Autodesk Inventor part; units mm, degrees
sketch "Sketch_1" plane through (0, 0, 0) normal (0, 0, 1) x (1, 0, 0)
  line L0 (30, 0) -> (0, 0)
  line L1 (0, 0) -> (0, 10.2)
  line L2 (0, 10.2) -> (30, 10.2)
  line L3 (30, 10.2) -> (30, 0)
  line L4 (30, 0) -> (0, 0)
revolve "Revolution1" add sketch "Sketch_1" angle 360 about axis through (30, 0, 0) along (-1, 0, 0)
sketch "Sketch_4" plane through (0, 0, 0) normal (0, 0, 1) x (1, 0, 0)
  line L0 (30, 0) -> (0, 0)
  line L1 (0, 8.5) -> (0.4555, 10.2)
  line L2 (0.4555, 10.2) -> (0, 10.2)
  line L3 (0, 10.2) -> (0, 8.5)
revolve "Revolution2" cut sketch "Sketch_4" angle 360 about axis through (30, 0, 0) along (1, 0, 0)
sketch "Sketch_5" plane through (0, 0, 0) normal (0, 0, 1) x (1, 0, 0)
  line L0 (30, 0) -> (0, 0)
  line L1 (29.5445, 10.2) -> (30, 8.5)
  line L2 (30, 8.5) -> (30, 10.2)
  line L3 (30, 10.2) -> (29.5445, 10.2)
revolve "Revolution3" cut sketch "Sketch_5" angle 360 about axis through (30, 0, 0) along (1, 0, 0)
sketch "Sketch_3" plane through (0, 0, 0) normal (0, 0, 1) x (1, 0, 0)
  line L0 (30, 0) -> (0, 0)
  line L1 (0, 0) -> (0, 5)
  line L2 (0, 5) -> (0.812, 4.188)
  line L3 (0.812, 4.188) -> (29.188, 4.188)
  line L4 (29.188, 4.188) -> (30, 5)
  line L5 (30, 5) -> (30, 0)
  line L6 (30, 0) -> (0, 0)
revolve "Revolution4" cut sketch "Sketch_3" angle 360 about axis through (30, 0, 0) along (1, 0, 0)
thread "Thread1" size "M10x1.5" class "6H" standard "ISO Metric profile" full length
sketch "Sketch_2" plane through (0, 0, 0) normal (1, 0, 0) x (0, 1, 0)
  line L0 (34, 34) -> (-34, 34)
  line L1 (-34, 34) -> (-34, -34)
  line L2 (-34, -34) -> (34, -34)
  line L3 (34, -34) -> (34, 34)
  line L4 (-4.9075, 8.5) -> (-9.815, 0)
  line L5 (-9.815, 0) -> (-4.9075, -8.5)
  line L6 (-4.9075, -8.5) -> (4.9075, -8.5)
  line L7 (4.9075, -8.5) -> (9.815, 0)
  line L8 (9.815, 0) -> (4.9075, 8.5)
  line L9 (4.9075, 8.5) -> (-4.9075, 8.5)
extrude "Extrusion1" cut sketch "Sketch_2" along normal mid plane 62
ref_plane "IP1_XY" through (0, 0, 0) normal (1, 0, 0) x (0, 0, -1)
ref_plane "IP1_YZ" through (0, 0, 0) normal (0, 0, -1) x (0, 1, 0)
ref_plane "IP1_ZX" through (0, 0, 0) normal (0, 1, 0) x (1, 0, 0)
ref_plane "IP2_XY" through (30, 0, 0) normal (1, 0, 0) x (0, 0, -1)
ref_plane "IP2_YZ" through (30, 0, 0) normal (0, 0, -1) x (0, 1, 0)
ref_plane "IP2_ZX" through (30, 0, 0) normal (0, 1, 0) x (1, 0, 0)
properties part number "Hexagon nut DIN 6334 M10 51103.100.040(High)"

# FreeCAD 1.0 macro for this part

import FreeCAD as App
import Part
import Sketcher

V = App.Vector
Q = App.Units.Quantity

doc = App.newDocument("Part")
body = doc.addObject("PartDesign::Body", "Body")

sketch1 = doc.addObject("Sketcher::SketchObject", "Sketch")
body.addObject(sketch1)
sketch1.AttachmentSupport = (doc.XY_Plane, [""])
sketch1.MapMode = "FlatFace"
sketch1.addGeometry(Part.LineSegment(V(0, 0, 0), V(30, 0, 0)), False)
sketch1.addGeometry(Part.LineSegment(V(30, 0, 0), V(30, 10.2, 0)), False)
sketch1.addGeometry(Part.LineSegment(V(30, 10.2, 0), V(0, 10.2, 0)), False)
sketch1.addGeometry(Part.LineSegment(V(0, 10.2, 0), V(0, 0, 0)), False)
sketch1.addConstraint(Sketcher.Constraint("Coincident", 0, 2, 1, 1))
sketch1.addConstraint(Sketcher.Constraint("Coincident", 1, 2, 2, 1))
sketch1.addConstraint(Sketcher.Constraint("Coincident", 2, 2, 3, 1))
sketch1.addConstraint(Sketcher.Constraint("Coincident", 3, 2, 0, 1))
sketch1.addConstraint(Sketcher.Constraint("Horizontal", 0))
sketch1.addConstraint(Sketcher.Constraint("Vertical", 1))
sketch1.addConstraint(Sketcher.Constraint("Horizontal", 2))
sketch1.addConstraint(Sketcher.Constraint("Vertical", 3))
sketch1.addConstraint(Sketcher.Constraint("Coincident", 3, 2, -1, 1))
sketch1.addConstraint(Sketcher.Constraint("DistanceX", 0, 1, 0, 2, Q("30 mm")))
sketch1.addConstraint(Sketcher.Constraint("DistanceY", 1, 1, 1, 2, Q("10.2 mm")))
revolution = doc.addObject("PartDesign::Revolution", "Revolution")
body.addObject(revolution)
revolution.Profile = sketch1
revolution.ReferenceAxis = (sketch1, ["H_Axis"])
revolution.Angle = 360

sketch2 = doc.addObject("Sketcher::SketchObject", "Sketch001")
body.addObject(sketch2)
sketch2.AttachmentSupport = (doc.XY_Plane, [""])
sketch2.MapMode = "FlatFace"
sketch2.addGeometry(Part.LineSegment(V(0, 10.2, 0), V(0, 8.5, 0)), False)
sketch2.addGeometry(Part.LineSegment(V(0, 8.5, 0), V(0.4555, 10.2, 0)), False)
sketch2.addGeometry(Part.LineSegment(V(0.4555, 10.2, 0), V(0, 10.2, 0)), False)
sketch2.addConstraint(Sketcher.Constraint("Coincident", 0, 2, 1, 1))
sketch2.addConstraint(Sketcher.Constraint("Coincident", 1, 2, 2, 1))
sketch2.addConstraint(Sketcher.Constraint("Coincident", 2, 2, 0, 1))
sketch2.addConstraint(Sketcher.Constraint("Vertical", 0))
sketch2.addConstraint(Sketcher.Constraint("Horizontal", 2))
sketch2.addConstraint(Sketcher.Constraint("PointOnObject", 0, 2, -2))
sketch2.addConstraint(Sketcher.Constraint("Angle", 1, Q("75.0004 deg")))
sketch2.addConstraint(Sketcher.Constraint("DistanceY", 0, 2, 0, 1, Q("1.7 mm")))
sketch2.addConstraint(Sketcher.Constraint("DistanceY", -1, 1, 0, 2, Q("8.5 mm")))
groove = doc.addObject("PartDesign::Groove", "Groove")
body.addObject(groove)
groove.Profile = sketch2
groove.ReferenceAxis = (sketch2, ["H_Axis"])
groove.Angle = 360

sketch3 = doc.addObject("Sketcher::SketchObject", "Sketch002")
body.addObject(sketch3)
sketch3.AttachmentSupport = (doc.XY_Plane, [""])
sketch3.MapMode = "FlatFace"
sketch3.addGeometry(Part.LineSegment(V(30, 10.2, 0), V(29.5445, 10.2, 0)), False)
sketch3.addGeometry(Part.LineSegment(V(29.5445, 10.2, 0), V(30, 8.5, 0)), False)
sketch3.addGeometry(Part.LineSegment(V(30, 8.5, 0), V(30, 10.2, 0)), False)
sketch3.addConstraint(Sketcher.Constraint("Coincident", 0, 2, 1, 1))
sketch3.addConstraint(Sketcher.Constraint("Coincident", 1, 2, 2, 1))
sketch3.addConstraint(Sketcher.Constraint("Coincident", 2, 2, 0, 1))
sketch3.addConstraint(Sketcher.Constraint("Horizontal", 0))
sketch3.addConstraint(Sketcher.Constraint("Vertical", 2))
sketch3.addConstraint(Sketcher.Constraint("Angle", 1, Q("-75.0004 deg")))
sketch3.addConstraint(Sketcher.Constraint("DistanceY", 2, 1, 2, 2, Q("1.7 mm")))
sketch3.addConstraint(Sketcher.Constraint("DistanceX", -1, 1, 1, 2, Q("30 mm")))
sketch3.addConstraint(Sketcher.Constraint("DistanceY", -1, 1, 0, 2, Q("10.2 mm")))
groove2 = doc.addObject("PartDesign::Groove", "Groove001")
body.addObject(groove2)
groove2.Profile = sketch3
groove2.ReferenceAxis = (sketch3, ["H_Axis"])
groove2.Angle = 360

sketch4 = doc.addObject("Sketcher::SketchObject", "Sketch003")
body.addObject(sketch4)
sketch4.AttachmentSupport = (doc.XY_Plane, [""])
sketch4.MapMode = "FlatFace"
sketch4.addGeometry(Part.LineSegment(V(0, 0, 0), V(30, 0, 0)), False)
sketch4.addGeometry(Part.LineSegment(V(30, 0, 0), V(30, 5, 0)), False)
sketch4.addGeometry(Part.LineSegment(V(30, 5, 0), V(29.188, 4.188, 0)), False)
sketch4.addGeometry(Part.LineSegment(V(29.188, 4.188, 0), V(0.812, 4.188, 0)), False)
sketch4.addGeometry(Part.LineSegment(V(0.812, 4.188, 0), V(0, 5, 0)), False)
sketch4.addGeometry(Part.LineSegment(V(0, 5, 0), V(0, 0, 0)), False)
sketch4.addConstraint(Sketcher.Constraint("Coincident", 0, 2, 1, 1))
sketch4.addConstraint(Sketcher.Constraint("Coincident", 1, 2, 2, 1))
sketch4.addConstraint(Sketcher.Constraint("Coincident", 2, 2, 3, 1))
sketch4.addConstraint(Sketcher.Constraint("Coincident", 3, 2, 4, 1))
sketch4.addConstraint(Sketcher.Constraint("Coincident", 4, 2, 5, 1))
sketch4.addConstraint(Sketcher.Constraint("Coincident", 5, 2, 0, 1))
sketch4.addConstraint(Sketcher.Constraint("Horizontal", 0))
sketch4.addConstraint(Sketcher.Constraint("Vertical", 1))
sketch4.addConstraint(Sketcher.Constraint("Horizontal", 3))
sketch4.addConstraint(Sketcher.Constraint("Vertical", 5))
sketch4.addConstraint(Sketcher.Constraint("Coincident", 5, 2, -1, 1))
sketch4.addConstraint(Sketcher.Constraint("Perpendicular", 2, 4))
sketch4.addConstraint(Sketcher.Constraint("Horizontal", 1, 2, 4, 2))
sketch4.addConstraint(Sketcher.Constraint("Equal", 2, 4))
sketch4.addConstraint(Sketcher.Constraint("DistanceX", 0, 1, 0, 2, Q("30 mm")))
sketch4.addConstraint(Sketcher.Constraint("DistanceY", 1, 1, 1, 2, Q("5 mm")))
sketch4.addConstraint(Sketcher.Constraint("DistanceX", 3, 2, 3, 1, Q("28.376 mm")))
groove3 = doc.addObject("PartDesign::Groove", "Groove002")
body.addObject(groove3)
groove3.Profile = sketch4
groove3.ReferenceAxis = (sketch4, ["H_Axis"])
groove3.Angle = 360

sketch5 = doc.addObject("Sketcher::SketchObject", "Sketch004")
body.addObject(sketch5)
sketch5.AttachmentSupport = (doc.YZ_Plane, [""])
sketch5.MapMode = "FlatFace"
sketch5.addGeometry(Part.LineSegment(V(34, -34, 0), V(34, 34, 0)), False)
sketch5.addGeometry(Part.LineSegment(V(34, 34, 0), V(-34, 34, 0)), False)
sketch5.addGeometry(Part.LineSegment(V(-34, 34, 0), V(-34, -34, 0)), False)
sketch5.addGeometry(Part.LineSegment(V(-34, -34, 0), V(34, -34, 0)), False)
sketch5.addGeometry(Part.LineSegment(V(-9.815, 0, 0), V(-4.9075, 8.5, 0)), False)
sketch5.addGeometry(Part.LineSegment(V(-4.9075, 8.5, 0), V(4.9075, 8.5, 0)), False)
sketch5.addGeometry(Part.LineSegment(V(4.9075, 8.5, 0), V(9.815, 0, 0)), False)
sketch5.addGeometry(Part.LineSegment(V(9.815, 0, 0), V(4.9075, -8.5, 0)), False)
sketch5.addGeometry(Part.LineSegment(V(4.9075, -8.5, 0), V(-4.9075, -8.5, 0)), False)
sketch5.addGeometry(Part.LineSegment(V(-4.9075, -8.5, 0), V(-9.815, 0, 0)), False)
sketch5.addConstraint(Sketcher.Constraint("Coincident", 0, 2, 1, 1))
sketch5.addConstraint(Sketcher.Constraint("Coincident", 1, 2, 2, 1))
sketch5.addConstraint(Sketcher.Constraint("Coincident", 2, 2, 3, 1))
sketch5.addConstraint(Sketcher.Constraint("Coincident", 3, 2, 0, 1))
sketch5.addConstraint(Sketcher.Constraint("Coincident", 4, 2, 5, 1))
sketch5.addConstraint(Sketcher.Constraint("Coincident", 5, 2, 6, 1))
sketch5.addConstraint(Sketcher.Constraint("Coincident", 6, 2, 7, 1))
sketch5.addConstraint(Sketcher.Constraint("Coincident", 7, 2, 8, 1))
sketch5.addConstraint(Sketcher.Constraint("Coincident", 8, 2, 9, 1))
sketch5.addConstraint(Sketcher.Constraint("Coincident", 9, 2, 4, 1))
sketch5.addConstraint(Sketcher.Constraint("Vertical", 0))
sketch5.addConstraint(Sketcher.Constraint("Horizontal", 1))
sketch5.addConstraint(Sketcher.Constraint("Vertical", 2))
sketch5.addConstraint(Sketcher.Constraint("Horizontal", 3))
sketch5.addConstraint(Sketcher.Constraint("Horizontal", 5))
sketch5.addConstraint(Sketcher.Constraint("Horizontal", 8))
sketch5.addConstraint(Sketcher.Constraint("Symmetric", 0, 2, 2, 2, -1, 1))
sketch5.addConstraint(Sketcher.Constraint("Symmetric", 4, 2, 7, 2, -1, 1))
sketch5.addConstraint(Sketcher.Constraint("Symmetric", 6, 2, 9, 2, -1, 1))
sketch5.addConstraint(Sketcher.Constraint("PointOnObject", 6, 2, -1))
sketch5.addConstraint(Sketcher.Constraint("Parallel", 6, 9))
sketch5.addConstraint(Sketcher.Constraint("Vertical", 5, 2, 7, 2))
sketch5.addConstraint(Sketcher.Constraint("Equal", 3, 0))
sketch5.addConstraint(Sketcher.Constraint("DistanceX", 1, 2, 1, 1, Q("68 mm")))
sketch5.addConstraint(Sketcher.Constraint("Angle", 4, Q("60 deg")))
sketch5.addConstraint(Sketcher.Constraint("DistanceY", 7, 2, 5, 2, Q("17 mm")))
sketch5.addConstraint(Sketcher.Constraint("DistanceX", 5, 1, 5, 2, Q("9.815 mm")))
pocket1 = doc.addObject("PartDesign::Pocket", "Pocket")
body.addObject(pocket1)
pocket1.Profile = sketch5
pocket1.Length = 62
pocket1.Midplane = True

doc.recompute()
